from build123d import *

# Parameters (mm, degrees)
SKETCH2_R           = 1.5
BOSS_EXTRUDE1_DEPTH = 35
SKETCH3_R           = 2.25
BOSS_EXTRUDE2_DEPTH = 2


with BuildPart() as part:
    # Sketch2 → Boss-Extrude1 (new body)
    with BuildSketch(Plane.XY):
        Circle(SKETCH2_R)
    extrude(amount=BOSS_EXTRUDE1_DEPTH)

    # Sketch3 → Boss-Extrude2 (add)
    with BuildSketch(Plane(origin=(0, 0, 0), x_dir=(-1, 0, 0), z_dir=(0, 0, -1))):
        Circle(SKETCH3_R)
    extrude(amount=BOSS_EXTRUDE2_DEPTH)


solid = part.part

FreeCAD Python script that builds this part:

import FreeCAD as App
import Part
import Sketcher
from FreeCAD import Vector

doc = App.newDocument("Part")
body = doc.addObject("PartDesign::Body", "Body")

sketch1 = body.newObject("Sketcher::SketchObject", "Sketch")
sketch1.AttachmentSupport = (doc.getObject("XY_Plane"), [""])
sketch1.MapMode = "FlatFace"
sketch1.addGeometry(Part.Circle(Vector(0, 0, 0), Vector(0, 0, 1), 1.5), False)
sketch1.addConstraint(Sketcher.Constraint("Coincident", 0, 3, -1, 1))
sketch1.addConstraint(Sketcher.Constraint("Diameter", 0, 3.0))
pad1 = body.newObject("PartDesign::Pad", "Pad")
pad1.Profile = sketch1
pad1.Length = 35

sketch2 = body.newObject("Sketcher::SketchObject", "Sketch001")
sketch2.AttachmentSupport = (doc.getObject("XY_Plane"), [""])
sketch2.MapMode = "FlatFace"
sketch2.addGeometry(Part.Circle(Vector(0, 0, 0), Vector(0, 0, 1), 2.2), False)
sketch2.addConstraint(Sketcher.Constraint("Coincident", 0, 3, -1, 1))
sketch2.addConstraint(Sketcher.Constraint("Diameter", 0, 4.5))
pad2 = body.newObject("PartDesign::Pad", "Pad001")
pad2.Profile = sketch2
pad2.Length = 2
pad2.Reversed = True

doc.recompute()
